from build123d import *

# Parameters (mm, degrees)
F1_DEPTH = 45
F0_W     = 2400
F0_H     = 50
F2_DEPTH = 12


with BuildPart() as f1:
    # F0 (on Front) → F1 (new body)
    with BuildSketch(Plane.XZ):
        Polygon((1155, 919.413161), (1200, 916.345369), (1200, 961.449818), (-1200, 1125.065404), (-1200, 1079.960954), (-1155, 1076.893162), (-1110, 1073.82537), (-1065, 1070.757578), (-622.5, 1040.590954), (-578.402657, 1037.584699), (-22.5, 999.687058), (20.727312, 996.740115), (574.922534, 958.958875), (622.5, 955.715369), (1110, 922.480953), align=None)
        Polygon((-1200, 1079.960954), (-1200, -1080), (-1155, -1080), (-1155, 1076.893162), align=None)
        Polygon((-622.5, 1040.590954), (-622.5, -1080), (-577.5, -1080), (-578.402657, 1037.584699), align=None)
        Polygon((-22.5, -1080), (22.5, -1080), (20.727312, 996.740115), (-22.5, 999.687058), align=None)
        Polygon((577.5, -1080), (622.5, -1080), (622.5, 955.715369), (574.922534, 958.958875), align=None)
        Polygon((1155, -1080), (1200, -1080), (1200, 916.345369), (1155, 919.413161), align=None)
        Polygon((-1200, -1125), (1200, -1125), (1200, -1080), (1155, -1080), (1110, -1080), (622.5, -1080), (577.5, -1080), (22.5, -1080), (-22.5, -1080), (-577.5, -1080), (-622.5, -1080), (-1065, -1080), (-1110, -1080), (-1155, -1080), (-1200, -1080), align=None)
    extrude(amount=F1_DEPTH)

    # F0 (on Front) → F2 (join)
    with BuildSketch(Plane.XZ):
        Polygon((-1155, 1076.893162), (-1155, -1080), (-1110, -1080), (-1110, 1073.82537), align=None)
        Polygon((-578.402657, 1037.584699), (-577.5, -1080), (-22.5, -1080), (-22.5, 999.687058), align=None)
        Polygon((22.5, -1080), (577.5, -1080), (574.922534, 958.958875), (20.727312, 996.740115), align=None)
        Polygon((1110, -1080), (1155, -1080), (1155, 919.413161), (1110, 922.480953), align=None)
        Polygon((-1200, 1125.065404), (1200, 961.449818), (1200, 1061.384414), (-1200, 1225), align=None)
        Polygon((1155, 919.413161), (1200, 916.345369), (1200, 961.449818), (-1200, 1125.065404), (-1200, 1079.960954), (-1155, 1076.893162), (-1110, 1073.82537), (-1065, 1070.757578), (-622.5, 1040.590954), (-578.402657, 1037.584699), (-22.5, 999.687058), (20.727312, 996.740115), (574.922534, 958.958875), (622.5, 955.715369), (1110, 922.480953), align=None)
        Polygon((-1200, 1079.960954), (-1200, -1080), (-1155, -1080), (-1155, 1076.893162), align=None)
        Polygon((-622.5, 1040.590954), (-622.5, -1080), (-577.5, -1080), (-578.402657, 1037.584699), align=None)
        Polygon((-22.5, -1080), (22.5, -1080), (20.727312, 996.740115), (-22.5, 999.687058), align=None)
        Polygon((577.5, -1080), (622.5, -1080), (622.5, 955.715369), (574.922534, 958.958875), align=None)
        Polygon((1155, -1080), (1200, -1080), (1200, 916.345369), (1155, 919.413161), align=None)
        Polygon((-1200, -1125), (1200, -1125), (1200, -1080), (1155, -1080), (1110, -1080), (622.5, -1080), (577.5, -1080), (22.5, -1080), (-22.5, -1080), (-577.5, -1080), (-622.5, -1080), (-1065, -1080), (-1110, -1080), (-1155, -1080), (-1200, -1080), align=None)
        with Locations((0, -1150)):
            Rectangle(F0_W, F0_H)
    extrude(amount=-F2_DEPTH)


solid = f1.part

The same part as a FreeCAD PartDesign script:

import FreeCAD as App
import Part
import Sketcher
Q = App.Units.Quantity


def add_polygon(sketch, points):
    """Adds a closed chain of lines whose ends are joined by coincident constraints."""
    first, n = sketch.GeometryCount, len(points)
    for a, b in zip(points, points[1:] + points[:1]):
        sketch.addGeometry(Part.LineSegment(App.Vector(*a, 0), App.Vector(*b, 0)), False)
    for i in range(n):
        sketch.addConstraint(Sketcher.Constraint("Coincident", first + i, 2, first + (i + 1) % n, 1))

doc = App.newDocument("Part")
body = doc.addObject("PartDesign::Body", "Body")

sketch1 = body.newObject("Sketcher::SketchObject", "Sketch")
sketch1.AttachmentSupport = (doc.getObject("XZ_Plane"), [""])
sketch1.MapMode = "FlatFace"
add_polygon(sketch1, [(1200, 961), (-1200, 1125), (-1200, -1125), (1200, -1125)])
add_polygon(sketch1, [(-1155, -1080), (-1155, 1077), (-1065, 1071), (-622, 1041), (-622, -1080)])
add_polygon(sketch1, [(-578, -1080), (-578, 1038), (-22, 1000), (-22, -1080)])
add_polygon(sketch1, [(22, -1080), (21, 997), (575, 959), (578, -1080)])
add_polygon(sketch1, [(622, -1080), (622, 956), (1110, 922), (1155, 919), (1155, -1080)])
sketch1.addConstraint([
    Sketcher.Constraint("Vertical", 1),
    Sketcher.Constraint("Horizontal", 2),
    Sketcher.Constraint("Vertical", 3),
    Sketcher.Constraint("Vertical", 4),
    Sketcher.Constraint("Vertical", 7),
    Sketcher.Constraint("Horizontal", 8),
    Sketcher.Constraint("Vertical", 11),
    Sketcher.Constraint("Horizontal", 12),
    Sketcher.Constraint("Horizontal", 16),
    Sketcher.Constraint("Vertical", 17),
    Sketcher.Constraint("Vertical", 20),
    Sketcher.Constraint("Horizontal", 21),
    Sketcher.Constraint("Symmetric", 12, 2, 15, 2, -2),
    Sketcher.Constraint("Symmetric", 8, 2, 20, 2, -2),
    Sketcher.Constraint("Parallel", 0, 5),
    Sketcher.Constraint("Parallel", 5, 6),
    Sketcher.Constraint("Parallel", 6, 10),
    Sketcher.Constraint("Parallel", 10, 14),
    Sketcher.Constraint("Parallel", 14, 18),
    Sketcher.Constraint("Parallel", 18, 19),
    Sketcher.Constraint("Horizontal", 8, 2, 11, 2),
    Sketcher.Constraint("Equal", 12, 16),
    Sketcher.Constraint("Equal", 8, 21),
    Sketcher.Constraint("DistanceX", 2, 1, 2, 2, 2400.0),
    Sketcher.Constraint("DistanceX", 12, 2, 12, 1, 555.0),
    Sketcher.Constraint("DistanceX", 8, 2, 8, 1, 532.5),
    Sketcher.Constraint("DistanceX", 0, 2, -1, 1, 1200.0),
    Sketcher.Constraint("DistanceY", 1, 2, -1, 1, 1125.0),
    Sketcher.Constraint("DistanceX", 4, 2, -1, 1, 1155.0),
    Sketcher.Constraint("DistanceX", 5, 2, -1, 1, 1065.0),
    Sketcher.Constraint("DistanceY", 7, 2, -1, 1, 1080.0),
    Sketcher.Constraint("DistanceX", -1, 1, 18, 2, 1110.0),
    Sketcher.Constraint("Angle", 0, Q("176.1 deg")),
    Sketcher.Constraint("DistanceX", 6, 2, 10, 2, 600.0),
    Sketcher.Constraint("DistanceY", 3, 1, 3, 2, 2086.449818),
    Sketcher.Constraint("DistanceY", 17, 1, 17, 2, 2035.715369),
    Sketcher.Constraint("DistanceY", -1, 1, 9, 2, 1037.584699),
    Sketcher.Constraint("Distance", 10, 557.192961),
    Sketcher.Constraint("Distance", 13, 2076.740872),
    Sketcher.Constraint("DistanceY", 4, 1, 4, 2, 2156.893162),
    Sketcher.Constraint("DistanceX", 10, 2, 13, 2, 43.227312),
    Sketcher.Constraint("DistanceY", 14, 2, 13, 2, 37.78124),
])
pad1 = body.newObject("PartDesign::Pad", "Pad")
pad1.Profile = sketch1
pad1.Length = 45

sketch2 = body.newObject("Sketcher::SketchObject", "Sketch001")
sketch2.AttachmentSupport = (doc.getObject("XZ_Plane"), [""])
sketch2.MapMode = "FlatFace"
add_polygon(sketch2, [(1200, 1061), (-1200, 1225), (-1200, -1175), (1200, -1175)])
add_polygon(sketch2, [(-1110, -1080), (-1110, 1074), (-1065, 1071), (-622, 1041), (-622, -1080)])
add_polygon(sketch2, [(622, -1080), (622, 956), (1110, 922), (1110, -1080)])
sketch2.addConstraint([
    Sketcher.Constraint("Vertical", 1),
    Sketcher.Constraint("Horizontal", 2),
    Sketcher.Constraint("Vertical", 3),
    Sketcher.Constraint("Vertical", 4),
    Sketcher.Constraint("Vertical", 7),
    Sketcher.Constraint("Horizontal", 8),
    Sketcher.Constraint("Vertical", 9),
    Sketcher.Constraint("Vertical", 11),
    Sketcher.Constraint("Horizontal", 12),
    Sketcher.Constraint("Symmetric", 8, 2, 11, 2, -2),
    Sketcher.Constraint("Parallel", 0, 5),
    Sketcher.Constraint("Parallel", 5, 6),
    Sketcher.Constraint("Parallel", 6, 10),
    Sketcher.Constraint("Equal", 8, 12),
    Sketcher.Constraint("Equal", 2, 1),
    Sketcher.Constraint("DistanceX", 2, 1, 2, 2, 2400.0),
    Sketcher.Constraint("DistanceX", 8, 2, 8, 1, 487.5),
    Sketcher.Constraint("DistanceX", 0, 2, -1, 1, 1200.0),
    Sketcher.Constraint("DistanceY", -1, 1, 0, 2, 1225.0),
    Sketcher.Constraint("DistanceX", 4, 2, -1, 1, 1110.0),
    Sketcher.Constraint("DistanceX", 5, 2, -1, 1, 1065.0),
    Sketcher.Constraint("DistanceY", 7, 2, -1, 1, 1080.0),
    Sketcher.Constraint("Angle", 0, Q("176.1 deg")),
    Sketcher.Constraint("DistanceY", 9, 2, 4, 2, 118.110001),
    Sketcher.Constraint("DistanceY", 4, 1, 4, 2, 2153.82537),
])
pad2 = body.newObject("PartDesign::Pad", "Pad001")
pad2.Profile = sketch2
pad2.Length = 12
pad2.Reversed = True

doc.recompute()
